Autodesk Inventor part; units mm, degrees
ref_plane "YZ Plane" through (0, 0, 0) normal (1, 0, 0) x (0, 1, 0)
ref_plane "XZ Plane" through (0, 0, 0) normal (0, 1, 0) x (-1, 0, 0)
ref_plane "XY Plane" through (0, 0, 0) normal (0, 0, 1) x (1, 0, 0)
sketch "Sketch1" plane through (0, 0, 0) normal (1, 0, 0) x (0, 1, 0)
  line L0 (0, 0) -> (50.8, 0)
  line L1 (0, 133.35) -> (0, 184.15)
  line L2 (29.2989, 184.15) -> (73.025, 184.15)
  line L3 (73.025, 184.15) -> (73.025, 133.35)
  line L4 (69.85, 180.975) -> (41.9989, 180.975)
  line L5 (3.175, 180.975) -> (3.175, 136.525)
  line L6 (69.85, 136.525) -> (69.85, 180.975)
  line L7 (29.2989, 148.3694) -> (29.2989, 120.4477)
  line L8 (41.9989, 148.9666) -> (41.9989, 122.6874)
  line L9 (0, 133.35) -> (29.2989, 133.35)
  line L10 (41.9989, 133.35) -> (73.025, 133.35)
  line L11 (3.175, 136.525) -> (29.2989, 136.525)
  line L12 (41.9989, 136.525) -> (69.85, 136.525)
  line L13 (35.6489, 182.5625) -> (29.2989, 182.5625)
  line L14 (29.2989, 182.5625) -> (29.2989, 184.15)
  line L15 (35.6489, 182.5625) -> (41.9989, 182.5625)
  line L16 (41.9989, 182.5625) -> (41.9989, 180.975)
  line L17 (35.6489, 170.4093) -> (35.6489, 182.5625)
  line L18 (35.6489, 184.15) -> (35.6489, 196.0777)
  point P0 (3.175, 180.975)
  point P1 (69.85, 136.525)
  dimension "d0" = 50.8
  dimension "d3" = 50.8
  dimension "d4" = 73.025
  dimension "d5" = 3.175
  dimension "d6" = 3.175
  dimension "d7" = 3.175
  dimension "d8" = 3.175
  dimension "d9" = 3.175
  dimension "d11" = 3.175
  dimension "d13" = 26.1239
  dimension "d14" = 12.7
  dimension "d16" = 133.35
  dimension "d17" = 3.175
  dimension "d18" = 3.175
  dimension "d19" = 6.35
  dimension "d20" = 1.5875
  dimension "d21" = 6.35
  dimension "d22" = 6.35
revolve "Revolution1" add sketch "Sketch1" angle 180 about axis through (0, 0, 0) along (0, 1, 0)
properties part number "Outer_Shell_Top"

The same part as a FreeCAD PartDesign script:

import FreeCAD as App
import Part
import Sketcher
from FreeCAD import Vector
Q = App.Units.Quantity


def add_polygon(sketch, points):
    """Adds a closed chain of lines whose ends are joined by coincident constraints."""
    first, n = sketch.GeometryCount, len(points)
    for a, b in zip(points, points[1:] + points[:1]):
        sketch.addGeometry(Part.LineSegment(App.Vector(*a, 0), App.Vector(*b, 0)), False)
    for i in range(n):
        sketch.addConstraint(Sketcher.Constraint("Coincident", first + i, 2, first + (i + 1) % n, 1))

doc = App.newDocument("Part")
params = doc.addObject("Spreadsheet::Sheet", "Params")
for row, (alias, value) in enumerate([
    ("sketch1_height", "2 in"),
    ("sketch1_width", "0.5 in"),
    ("sketch1_height2", "0.0625 in"),
    ("sketch1_height3", "0.125 in"),
    ("revolution_angle", "180 deg"),
], start=1):
    params.set(f"A{row}", alias)
    params.set(f"B{row}", "=" + value)
    params.setAlias(f"B{row}", alias)

body = doc.addObject("PartDesign::Body", "Body")

# Sketch on YZ plane
sketch1 = body.newObject("Sketcher::SketchObject", "Sketch")
sketch1.AttachmentSupport = (doc.getObject("YZ_Plane"), [""])
sketch1.MapMode = "FlatFace"
add_polygon(sketch1, [(73.025, 184.15), (29.2989, 184.15), (29.2989, 182.5625), (41.9989, 182.5625), (41.9989, 180.975), (69.85, 180.975), (69.85, 136.525), (41.9989, 136.525), (41.9989, 133.35), (73.025, 133.35)])  # lines 0-9
sketch1.addConstraint(Sketcher.Constraint("Horizontal", 0))
sketch1.addConstraint(Sketcher.Constraint("Vertical", 1))
sketch1.addConstraint(Sketcher.Constraint("Horizontal", 2))
sketch1.addConstraint(Sketcher.Constraint("Vertical", 3))
sketch1.addConstraint(Sketcher.Constraint("Horizontal", 4))
sketch1.addConstraint(Sketcher.Constraint("Vertical", 5))
sketch1.addConstraint(Sketcher.Constraint("Horizontal", 6))
sketch1.addConstraint(Sketcher.Constraint("Vertical", 7))
sketch1.addConstraint(Sketcher.Constraint("Horizontal", 8))
sketch1.addConstraint(Sketcher.Constraint("Vertical", 9))
sketch1.addConstraint(Sketcher.Constraint("Vertical", 3, 2, 6, 2))
sketch1.addConstraint(Sketcher.Constraint("Equal", 1, 3))
sketch1.addConstraint(Sketcher.Constraint("DistanceY", 9, 1, 9, 2, Q("2 in")))
sketch1.addConstraint(Sketcher.Constraint("DistanceX", 2, 1, 2, 2, Q("0.5 in")))
sketch1.addConstraint(Sketcher.Constraint("DistanceY", 1, 2, 1, 1, Q("0.0625 in")))
sketch1.addConstraint(Sketcher.Constraint("DistanceY", 7, 2, 7, 1, Q("0.125 in")))
sketch1.addConstraint(Sketcher.Constraint("DistanceY", -1, 1, 7, 2, Q("5.25 in")))
sketch1.addConstraint(Sketcher.Constraint("DistanceX", -1, 1, 8, 2, Q("2.875 in")))
sketch1.addConstraint(Sketcher.Constraint("DistanceX", 5, 2, 8, 2, Q("0.125 in")))
sketch1.addConstraint(Sketcher.Constraint("DistanceX", 0, 2, 0, 1, Q("1.7215 in")))
sketch1.setExpression("Constraints[22]", "Params.sketch1_height")
sketch1.setExpression("Constraints[23]", "Params.sketch1_width")
sketch1.setExpression("Constraints[24]", "Params.sketch1_height2")
sketch1.setExpression("Constraints[25]", "Params.sketch1_height3")
revolution = body.newObject("PartDesign::Revolution", "Revolution")
revolution.Profile = sketch1
revolution.ReferenceAxis = (sketch1, ["H_Axis"])
revolution.setExpression("Angle", "Params.revolution_angle")

doc.recompute()
